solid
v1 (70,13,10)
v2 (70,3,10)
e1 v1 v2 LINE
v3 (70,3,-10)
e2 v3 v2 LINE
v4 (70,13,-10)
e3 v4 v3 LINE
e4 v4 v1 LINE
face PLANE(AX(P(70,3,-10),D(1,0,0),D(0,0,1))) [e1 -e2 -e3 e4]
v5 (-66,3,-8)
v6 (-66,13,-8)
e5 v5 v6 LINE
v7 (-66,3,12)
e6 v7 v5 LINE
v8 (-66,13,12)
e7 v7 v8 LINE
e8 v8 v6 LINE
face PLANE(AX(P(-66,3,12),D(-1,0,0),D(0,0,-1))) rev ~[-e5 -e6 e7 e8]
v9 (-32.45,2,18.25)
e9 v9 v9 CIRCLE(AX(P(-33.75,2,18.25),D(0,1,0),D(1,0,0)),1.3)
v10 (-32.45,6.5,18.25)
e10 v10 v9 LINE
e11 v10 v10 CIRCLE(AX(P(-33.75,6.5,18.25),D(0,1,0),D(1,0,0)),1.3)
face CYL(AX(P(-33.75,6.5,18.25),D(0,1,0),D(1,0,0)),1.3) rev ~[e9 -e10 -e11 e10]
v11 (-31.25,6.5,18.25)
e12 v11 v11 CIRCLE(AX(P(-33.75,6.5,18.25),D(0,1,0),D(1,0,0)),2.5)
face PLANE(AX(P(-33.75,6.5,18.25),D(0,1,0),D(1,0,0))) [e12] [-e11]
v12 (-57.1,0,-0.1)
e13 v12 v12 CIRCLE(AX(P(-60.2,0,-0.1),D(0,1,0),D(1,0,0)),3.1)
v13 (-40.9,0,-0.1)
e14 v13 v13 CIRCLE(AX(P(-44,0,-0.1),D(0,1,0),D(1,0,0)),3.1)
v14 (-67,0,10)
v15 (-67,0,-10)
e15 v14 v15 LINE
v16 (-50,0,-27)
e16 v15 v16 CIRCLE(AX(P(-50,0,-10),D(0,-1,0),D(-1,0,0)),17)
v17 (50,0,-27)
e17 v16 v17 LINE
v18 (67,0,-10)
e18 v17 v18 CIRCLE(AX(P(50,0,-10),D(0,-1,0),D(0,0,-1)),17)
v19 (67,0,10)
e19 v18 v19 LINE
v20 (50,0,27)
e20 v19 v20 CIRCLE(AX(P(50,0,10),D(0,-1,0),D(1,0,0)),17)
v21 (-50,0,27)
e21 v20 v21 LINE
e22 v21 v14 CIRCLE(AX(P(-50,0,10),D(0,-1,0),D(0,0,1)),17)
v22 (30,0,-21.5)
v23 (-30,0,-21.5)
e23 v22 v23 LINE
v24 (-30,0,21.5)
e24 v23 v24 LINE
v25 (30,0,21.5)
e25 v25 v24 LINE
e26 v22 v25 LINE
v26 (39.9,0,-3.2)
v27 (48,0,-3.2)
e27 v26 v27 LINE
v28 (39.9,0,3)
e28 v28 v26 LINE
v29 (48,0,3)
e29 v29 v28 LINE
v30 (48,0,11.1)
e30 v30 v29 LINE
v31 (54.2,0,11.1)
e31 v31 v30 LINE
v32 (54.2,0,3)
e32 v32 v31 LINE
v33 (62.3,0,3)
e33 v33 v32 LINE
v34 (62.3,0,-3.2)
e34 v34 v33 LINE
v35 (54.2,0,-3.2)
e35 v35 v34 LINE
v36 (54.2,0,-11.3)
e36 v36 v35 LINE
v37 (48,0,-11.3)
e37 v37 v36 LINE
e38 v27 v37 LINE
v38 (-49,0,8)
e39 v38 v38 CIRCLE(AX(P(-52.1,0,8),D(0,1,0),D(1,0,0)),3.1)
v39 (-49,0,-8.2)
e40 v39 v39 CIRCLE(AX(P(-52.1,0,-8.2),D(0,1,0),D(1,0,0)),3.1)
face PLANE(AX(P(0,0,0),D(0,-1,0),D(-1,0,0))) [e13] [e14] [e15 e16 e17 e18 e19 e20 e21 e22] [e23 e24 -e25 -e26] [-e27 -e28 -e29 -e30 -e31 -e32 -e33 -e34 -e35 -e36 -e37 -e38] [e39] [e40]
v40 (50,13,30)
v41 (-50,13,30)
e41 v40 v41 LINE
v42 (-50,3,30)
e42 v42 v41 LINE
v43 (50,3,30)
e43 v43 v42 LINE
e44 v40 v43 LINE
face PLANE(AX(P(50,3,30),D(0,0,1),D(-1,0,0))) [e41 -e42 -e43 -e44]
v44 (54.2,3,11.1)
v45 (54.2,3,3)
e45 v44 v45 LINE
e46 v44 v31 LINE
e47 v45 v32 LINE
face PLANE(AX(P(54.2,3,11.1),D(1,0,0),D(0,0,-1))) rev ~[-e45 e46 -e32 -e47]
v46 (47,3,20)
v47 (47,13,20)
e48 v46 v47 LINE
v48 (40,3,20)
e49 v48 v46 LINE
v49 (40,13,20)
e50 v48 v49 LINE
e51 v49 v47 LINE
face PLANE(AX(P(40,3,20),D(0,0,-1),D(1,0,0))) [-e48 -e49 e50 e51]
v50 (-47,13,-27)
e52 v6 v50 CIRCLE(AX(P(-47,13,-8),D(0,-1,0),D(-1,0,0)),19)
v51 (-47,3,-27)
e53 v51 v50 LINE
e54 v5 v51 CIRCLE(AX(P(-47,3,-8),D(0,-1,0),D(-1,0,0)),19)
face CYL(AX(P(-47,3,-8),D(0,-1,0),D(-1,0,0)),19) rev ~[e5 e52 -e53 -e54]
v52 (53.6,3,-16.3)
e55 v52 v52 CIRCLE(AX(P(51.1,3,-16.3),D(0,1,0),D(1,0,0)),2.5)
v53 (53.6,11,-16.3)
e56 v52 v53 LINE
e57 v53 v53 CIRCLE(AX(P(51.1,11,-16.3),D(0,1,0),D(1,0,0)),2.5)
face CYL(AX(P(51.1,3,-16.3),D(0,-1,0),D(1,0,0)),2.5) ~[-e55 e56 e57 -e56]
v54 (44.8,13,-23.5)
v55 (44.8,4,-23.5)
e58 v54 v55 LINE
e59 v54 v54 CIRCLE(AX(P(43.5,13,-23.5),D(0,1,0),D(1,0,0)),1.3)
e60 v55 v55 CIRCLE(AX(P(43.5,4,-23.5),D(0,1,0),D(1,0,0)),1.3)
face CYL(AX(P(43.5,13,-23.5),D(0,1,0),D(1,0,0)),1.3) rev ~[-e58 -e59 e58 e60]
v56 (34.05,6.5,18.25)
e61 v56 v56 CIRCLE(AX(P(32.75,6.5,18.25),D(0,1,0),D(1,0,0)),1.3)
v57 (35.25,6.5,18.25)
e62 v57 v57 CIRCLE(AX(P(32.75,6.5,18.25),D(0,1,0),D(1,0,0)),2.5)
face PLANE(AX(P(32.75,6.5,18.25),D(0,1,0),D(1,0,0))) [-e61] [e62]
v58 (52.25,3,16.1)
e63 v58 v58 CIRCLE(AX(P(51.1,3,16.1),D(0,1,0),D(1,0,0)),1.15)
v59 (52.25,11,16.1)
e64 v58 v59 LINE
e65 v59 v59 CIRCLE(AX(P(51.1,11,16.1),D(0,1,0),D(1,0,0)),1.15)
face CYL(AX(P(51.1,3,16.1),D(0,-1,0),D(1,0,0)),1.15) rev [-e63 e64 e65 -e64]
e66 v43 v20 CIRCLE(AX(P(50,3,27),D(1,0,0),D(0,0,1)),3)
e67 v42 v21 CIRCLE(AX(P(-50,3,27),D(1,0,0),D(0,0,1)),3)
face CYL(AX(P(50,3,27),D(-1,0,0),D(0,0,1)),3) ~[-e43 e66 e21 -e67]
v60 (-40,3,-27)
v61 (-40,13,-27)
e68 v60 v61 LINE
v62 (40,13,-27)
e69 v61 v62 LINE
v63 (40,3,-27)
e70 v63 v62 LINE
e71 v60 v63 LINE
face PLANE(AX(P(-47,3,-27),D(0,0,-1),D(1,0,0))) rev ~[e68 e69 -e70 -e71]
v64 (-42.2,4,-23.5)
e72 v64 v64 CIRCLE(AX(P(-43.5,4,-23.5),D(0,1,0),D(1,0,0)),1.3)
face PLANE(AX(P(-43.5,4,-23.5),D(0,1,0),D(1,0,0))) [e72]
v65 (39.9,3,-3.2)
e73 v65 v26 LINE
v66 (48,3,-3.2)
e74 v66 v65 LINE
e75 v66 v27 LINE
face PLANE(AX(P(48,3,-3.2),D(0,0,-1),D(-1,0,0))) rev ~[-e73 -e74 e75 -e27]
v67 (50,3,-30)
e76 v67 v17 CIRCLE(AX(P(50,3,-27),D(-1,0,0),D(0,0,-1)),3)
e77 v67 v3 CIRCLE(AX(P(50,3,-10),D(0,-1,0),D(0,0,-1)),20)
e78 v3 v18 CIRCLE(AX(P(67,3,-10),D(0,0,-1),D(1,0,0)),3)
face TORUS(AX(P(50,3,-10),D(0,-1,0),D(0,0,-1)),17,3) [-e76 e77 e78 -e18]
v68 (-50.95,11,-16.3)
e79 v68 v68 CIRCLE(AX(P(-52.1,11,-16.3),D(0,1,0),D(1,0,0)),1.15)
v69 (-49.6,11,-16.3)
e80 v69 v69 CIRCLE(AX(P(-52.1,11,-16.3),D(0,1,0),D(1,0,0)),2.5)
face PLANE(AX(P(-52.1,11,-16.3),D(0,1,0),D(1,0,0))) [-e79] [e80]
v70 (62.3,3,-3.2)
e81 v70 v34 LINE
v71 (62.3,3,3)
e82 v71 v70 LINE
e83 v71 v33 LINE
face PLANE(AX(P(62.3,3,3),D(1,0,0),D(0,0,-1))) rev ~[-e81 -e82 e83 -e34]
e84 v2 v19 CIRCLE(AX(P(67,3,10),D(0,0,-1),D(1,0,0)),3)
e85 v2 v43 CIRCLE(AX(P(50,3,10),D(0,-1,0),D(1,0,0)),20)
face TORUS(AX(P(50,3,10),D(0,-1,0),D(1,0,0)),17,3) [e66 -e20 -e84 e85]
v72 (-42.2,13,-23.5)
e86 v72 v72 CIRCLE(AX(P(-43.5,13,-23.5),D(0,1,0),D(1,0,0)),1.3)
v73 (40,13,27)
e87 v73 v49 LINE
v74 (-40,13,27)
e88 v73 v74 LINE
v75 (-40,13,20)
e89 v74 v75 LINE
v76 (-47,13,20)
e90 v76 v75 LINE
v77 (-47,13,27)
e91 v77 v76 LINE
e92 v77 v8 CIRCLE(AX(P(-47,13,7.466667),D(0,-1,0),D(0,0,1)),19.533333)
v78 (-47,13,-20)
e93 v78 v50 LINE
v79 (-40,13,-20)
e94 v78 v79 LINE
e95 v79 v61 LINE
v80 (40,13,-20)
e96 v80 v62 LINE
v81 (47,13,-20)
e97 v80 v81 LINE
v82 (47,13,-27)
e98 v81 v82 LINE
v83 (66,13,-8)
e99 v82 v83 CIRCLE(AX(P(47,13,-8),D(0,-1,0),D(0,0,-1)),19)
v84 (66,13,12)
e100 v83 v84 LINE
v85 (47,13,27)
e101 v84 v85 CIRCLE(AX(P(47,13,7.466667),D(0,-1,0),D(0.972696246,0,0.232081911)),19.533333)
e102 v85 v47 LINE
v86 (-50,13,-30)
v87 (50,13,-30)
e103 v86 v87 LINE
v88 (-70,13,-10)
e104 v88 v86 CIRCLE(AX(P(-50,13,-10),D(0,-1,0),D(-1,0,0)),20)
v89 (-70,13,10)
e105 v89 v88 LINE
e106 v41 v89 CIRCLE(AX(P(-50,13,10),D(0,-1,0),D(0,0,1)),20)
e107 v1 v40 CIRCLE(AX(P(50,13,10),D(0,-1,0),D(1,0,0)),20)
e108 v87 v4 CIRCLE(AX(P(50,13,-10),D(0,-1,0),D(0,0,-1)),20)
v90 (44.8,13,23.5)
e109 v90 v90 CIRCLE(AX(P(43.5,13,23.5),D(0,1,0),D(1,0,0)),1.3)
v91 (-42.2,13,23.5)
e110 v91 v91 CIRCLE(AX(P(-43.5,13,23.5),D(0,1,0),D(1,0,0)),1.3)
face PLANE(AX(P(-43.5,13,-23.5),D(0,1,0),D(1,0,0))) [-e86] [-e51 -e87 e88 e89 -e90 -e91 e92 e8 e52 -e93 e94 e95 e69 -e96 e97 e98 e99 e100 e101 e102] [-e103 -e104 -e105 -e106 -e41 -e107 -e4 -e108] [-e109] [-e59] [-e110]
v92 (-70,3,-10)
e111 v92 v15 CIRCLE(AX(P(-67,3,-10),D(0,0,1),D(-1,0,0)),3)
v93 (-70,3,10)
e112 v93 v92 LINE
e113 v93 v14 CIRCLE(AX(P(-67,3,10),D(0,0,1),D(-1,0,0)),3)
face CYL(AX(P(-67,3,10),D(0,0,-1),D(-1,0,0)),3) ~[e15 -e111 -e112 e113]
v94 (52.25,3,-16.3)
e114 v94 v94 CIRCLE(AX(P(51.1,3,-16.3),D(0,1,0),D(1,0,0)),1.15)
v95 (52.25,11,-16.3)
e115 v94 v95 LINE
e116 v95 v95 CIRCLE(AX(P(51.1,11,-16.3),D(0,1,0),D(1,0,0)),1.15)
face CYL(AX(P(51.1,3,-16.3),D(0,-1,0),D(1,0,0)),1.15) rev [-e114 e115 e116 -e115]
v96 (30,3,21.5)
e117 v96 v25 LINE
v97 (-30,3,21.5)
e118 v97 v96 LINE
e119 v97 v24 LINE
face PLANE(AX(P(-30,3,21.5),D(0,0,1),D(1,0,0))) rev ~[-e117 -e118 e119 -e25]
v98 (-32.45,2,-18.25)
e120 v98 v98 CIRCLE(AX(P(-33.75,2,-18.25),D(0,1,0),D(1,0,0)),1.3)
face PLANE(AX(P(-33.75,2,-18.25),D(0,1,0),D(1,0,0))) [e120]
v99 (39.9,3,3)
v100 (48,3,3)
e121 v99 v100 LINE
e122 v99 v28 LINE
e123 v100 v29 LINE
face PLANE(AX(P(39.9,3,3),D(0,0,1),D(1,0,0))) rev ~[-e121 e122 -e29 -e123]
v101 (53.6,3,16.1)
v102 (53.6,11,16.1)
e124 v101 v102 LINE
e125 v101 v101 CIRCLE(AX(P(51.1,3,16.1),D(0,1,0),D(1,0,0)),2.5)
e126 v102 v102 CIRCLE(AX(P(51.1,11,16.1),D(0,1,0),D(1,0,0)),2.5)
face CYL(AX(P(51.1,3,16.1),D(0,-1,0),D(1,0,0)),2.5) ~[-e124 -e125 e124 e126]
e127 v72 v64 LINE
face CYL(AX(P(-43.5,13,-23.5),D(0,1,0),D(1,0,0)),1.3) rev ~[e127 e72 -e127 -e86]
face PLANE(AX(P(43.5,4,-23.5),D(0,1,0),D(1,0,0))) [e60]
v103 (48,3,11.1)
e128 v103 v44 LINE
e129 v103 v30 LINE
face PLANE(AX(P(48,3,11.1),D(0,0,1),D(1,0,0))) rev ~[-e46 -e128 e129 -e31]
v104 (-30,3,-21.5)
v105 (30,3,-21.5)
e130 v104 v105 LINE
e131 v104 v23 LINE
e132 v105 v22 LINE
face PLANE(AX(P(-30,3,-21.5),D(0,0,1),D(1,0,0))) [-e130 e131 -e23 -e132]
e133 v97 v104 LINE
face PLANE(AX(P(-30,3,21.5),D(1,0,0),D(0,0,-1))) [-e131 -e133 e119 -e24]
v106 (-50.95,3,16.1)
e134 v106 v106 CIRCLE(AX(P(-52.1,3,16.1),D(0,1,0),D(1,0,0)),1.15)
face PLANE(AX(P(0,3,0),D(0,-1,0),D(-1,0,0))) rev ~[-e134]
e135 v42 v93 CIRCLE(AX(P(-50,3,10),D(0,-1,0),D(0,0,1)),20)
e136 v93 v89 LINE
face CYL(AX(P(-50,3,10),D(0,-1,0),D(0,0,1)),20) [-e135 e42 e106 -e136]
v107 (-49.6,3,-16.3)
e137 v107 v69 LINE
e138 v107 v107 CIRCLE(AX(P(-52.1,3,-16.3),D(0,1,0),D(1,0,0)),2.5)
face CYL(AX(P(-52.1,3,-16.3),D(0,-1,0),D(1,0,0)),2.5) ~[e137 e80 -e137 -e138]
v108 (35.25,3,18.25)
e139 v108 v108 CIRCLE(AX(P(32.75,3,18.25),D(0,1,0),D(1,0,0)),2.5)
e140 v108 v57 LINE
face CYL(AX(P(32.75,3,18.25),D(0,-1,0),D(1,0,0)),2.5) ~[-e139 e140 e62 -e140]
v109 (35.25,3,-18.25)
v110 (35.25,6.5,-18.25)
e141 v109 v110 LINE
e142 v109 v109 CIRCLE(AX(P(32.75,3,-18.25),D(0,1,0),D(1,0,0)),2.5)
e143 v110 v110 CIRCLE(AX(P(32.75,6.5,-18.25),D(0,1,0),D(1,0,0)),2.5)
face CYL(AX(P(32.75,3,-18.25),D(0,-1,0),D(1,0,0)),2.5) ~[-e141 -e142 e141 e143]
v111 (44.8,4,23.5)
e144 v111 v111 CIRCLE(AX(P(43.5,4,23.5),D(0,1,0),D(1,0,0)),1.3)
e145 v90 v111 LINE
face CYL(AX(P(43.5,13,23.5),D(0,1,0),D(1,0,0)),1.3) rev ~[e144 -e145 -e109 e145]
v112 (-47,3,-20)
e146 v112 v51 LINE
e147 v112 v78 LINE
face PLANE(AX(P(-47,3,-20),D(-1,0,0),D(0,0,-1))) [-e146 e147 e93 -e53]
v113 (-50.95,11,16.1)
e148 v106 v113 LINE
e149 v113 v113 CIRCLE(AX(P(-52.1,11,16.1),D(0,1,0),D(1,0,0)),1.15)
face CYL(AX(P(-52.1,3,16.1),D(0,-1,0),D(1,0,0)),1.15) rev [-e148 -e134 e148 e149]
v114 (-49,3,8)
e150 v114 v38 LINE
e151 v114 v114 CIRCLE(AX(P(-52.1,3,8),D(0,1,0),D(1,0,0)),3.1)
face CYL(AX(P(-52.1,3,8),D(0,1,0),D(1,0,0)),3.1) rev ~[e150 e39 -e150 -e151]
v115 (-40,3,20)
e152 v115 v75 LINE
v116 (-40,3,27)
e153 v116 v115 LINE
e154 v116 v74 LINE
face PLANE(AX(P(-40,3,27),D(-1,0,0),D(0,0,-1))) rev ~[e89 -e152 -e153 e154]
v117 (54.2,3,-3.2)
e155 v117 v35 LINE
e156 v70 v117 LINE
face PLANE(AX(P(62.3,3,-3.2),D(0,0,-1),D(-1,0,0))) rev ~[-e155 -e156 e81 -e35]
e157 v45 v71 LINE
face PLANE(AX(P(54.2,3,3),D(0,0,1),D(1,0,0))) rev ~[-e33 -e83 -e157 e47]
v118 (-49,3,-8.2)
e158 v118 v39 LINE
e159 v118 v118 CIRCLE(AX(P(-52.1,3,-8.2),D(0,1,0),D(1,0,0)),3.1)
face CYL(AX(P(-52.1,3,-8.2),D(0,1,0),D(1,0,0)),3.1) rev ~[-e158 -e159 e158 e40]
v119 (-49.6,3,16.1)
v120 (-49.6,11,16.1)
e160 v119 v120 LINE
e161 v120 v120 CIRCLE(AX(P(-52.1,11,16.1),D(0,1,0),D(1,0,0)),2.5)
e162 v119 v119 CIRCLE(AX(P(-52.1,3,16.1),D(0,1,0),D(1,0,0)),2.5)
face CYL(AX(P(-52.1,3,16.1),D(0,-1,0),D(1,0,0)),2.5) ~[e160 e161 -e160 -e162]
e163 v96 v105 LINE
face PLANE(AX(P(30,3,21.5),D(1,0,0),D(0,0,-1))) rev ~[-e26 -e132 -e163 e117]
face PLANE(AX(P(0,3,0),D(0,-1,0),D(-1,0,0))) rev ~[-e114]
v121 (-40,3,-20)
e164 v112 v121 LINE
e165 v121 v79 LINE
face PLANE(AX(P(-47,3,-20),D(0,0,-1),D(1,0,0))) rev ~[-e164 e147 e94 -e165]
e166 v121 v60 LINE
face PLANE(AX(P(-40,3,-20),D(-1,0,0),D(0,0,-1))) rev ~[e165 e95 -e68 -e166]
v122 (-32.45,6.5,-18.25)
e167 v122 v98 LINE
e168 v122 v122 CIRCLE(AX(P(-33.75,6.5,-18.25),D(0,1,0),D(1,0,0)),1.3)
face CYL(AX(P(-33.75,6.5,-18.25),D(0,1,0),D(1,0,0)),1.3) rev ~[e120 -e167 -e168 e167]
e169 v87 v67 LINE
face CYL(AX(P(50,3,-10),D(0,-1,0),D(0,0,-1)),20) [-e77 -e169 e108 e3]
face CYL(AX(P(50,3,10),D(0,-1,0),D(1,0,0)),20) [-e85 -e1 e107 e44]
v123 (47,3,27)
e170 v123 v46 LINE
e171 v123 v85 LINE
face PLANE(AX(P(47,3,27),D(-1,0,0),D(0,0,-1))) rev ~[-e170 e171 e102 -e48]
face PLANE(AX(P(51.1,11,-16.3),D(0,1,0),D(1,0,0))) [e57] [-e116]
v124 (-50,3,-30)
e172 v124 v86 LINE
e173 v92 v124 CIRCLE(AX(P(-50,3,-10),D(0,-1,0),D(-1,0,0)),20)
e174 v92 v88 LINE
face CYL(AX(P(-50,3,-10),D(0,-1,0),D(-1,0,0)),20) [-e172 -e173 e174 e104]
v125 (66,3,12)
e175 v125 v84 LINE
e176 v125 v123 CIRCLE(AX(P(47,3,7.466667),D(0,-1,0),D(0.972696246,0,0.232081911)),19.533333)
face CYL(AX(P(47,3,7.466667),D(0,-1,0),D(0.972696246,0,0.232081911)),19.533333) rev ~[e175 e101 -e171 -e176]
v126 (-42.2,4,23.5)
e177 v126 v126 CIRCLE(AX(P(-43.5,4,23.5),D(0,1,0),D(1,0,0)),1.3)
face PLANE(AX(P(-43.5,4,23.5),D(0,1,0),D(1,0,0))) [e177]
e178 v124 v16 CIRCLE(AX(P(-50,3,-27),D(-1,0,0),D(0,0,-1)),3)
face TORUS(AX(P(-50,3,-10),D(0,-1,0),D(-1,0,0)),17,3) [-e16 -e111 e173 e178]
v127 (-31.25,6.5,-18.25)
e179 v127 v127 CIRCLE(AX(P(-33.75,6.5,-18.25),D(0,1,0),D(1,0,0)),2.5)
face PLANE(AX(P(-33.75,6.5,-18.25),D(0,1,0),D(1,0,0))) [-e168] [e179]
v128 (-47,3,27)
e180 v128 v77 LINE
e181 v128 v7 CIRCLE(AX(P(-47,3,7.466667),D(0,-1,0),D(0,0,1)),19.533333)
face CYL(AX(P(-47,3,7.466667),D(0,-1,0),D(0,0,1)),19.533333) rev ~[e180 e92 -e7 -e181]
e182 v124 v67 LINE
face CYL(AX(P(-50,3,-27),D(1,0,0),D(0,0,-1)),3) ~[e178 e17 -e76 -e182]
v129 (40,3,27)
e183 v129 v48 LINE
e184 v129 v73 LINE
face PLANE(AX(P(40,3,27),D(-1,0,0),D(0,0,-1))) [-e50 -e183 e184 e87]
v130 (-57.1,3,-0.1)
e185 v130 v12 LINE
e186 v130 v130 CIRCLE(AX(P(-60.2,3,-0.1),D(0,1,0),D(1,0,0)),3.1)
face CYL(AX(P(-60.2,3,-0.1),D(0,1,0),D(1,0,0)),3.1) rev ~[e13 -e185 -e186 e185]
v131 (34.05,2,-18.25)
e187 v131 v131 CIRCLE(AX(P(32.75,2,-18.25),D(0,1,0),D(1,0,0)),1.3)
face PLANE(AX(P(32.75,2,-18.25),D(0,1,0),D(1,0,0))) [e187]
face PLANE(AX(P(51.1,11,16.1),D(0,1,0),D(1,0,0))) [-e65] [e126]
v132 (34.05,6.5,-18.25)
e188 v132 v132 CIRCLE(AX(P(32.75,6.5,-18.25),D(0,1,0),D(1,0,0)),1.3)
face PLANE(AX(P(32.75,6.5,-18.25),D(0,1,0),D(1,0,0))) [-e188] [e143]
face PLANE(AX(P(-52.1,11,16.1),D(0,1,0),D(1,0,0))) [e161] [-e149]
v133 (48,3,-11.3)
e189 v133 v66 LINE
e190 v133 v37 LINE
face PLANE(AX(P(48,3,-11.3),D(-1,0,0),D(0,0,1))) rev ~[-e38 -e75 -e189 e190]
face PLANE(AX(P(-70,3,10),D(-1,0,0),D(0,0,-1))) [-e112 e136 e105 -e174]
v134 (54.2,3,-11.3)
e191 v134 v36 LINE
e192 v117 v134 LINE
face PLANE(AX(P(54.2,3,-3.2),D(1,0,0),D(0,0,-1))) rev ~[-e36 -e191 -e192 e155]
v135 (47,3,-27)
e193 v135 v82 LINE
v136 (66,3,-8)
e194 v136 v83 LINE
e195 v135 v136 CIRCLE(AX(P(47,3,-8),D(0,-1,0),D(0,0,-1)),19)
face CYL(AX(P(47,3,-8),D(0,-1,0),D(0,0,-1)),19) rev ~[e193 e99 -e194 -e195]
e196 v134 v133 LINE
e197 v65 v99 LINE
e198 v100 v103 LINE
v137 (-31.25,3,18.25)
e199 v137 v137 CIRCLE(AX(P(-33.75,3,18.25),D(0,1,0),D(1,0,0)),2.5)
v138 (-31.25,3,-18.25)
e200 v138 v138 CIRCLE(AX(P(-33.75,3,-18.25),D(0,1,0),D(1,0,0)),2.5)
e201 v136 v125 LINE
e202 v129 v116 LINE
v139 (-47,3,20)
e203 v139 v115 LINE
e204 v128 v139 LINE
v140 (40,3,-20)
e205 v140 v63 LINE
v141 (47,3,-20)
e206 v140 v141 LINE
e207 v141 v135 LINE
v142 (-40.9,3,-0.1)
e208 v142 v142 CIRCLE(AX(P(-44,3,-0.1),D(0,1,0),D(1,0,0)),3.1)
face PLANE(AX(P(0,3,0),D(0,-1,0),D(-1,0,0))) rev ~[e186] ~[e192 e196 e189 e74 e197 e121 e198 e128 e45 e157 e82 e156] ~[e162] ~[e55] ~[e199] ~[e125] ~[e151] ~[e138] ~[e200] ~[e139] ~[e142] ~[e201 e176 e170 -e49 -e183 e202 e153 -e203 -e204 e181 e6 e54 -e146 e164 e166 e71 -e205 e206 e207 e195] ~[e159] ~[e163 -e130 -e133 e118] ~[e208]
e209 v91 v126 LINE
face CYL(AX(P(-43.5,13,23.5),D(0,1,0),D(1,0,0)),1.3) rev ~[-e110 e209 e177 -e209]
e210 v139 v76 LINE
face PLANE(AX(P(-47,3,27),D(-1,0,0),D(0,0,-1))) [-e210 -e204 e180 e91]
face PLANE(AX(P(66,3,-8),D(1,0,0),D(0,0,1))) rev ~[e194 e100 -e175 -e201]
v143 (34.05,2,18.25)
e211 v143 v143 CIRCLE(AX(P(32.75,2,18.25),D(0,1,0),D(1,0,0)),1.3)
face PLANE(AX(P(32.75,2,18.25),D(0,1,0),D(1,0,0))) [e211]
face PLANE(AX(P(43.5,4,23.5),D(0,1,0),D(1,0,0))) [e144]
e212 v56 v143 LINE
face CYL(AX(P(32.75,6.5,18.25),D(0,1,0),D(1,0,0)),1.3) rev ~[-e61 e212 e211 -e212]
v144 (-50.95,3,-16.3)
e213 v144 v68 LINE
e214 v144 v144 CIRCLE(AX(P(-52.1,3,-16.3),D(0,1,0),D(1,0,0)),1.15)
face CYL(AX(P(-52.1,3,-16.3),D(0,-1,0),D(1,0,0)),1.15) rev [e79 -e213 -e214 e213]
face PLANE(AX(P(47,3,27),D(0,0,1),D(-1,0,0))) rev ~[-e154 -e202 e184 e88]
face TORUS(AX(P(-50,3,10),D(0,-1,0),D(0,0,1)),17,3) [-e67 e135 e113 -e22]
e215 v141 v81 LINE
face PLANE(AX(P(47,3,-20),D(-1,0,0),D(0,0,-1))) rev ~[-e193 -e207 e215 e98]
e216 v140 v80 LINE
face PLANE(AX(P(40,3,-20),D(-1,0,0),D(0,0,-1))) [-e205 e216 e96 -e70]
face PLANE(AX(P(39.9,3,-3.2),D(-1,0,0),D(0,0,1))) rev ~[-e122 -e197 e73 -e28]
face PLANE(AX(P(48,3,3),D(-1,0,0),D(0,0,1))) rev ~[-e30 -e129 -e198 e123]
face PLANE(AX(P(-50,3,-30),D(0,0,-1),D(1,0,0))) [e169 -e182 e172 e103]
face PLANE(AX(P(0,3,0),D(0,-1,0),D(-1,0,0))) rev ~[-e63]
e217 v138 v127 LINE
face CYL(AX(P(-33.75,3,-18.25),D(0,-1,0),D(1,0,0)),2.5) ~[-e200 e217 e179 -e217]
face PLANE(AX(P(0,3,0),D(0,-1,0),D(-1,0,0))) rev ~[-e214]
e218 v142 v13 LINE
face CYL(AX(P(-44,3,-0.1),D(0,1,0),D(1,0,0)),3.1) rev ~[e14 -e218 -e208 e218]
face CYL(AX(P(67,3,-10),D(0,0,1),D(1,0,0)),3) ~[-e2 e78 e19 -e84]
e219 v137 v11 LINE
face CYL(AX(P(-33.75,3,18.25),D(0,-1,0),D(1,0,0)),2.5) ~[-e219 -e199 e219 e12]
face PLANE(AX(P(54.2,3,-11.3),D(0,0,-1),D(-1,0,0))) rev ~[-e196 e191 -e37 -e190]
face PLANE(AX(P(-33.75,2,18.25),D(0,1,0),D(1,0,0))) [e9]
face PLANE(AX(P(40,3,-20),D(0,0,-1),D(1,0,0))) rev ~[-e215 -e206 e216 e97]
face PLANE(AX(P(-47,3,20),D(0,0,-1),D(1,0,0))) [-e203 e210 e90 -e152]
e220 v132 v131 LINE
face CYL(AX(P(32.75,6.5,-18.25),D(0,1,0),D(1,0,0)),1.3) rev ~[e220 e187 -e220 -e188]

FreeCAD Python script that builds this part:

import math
import FreeCAD as App
import Part
import Sketcher

V = App.Vector


def edges_at(feature, points):
    """Names of the edges that pass closest to the given points."""
    edges = feature.Shape.Edges
    near = lambda p: min(range(len(edges)), key=lambda i: edges[i].distToShape(Part.Vertex(*p))[0])
    return sorted({f"Edge{near(p) + 1}" for p in points})

doc = App.newDocument("Part")
body = doc.addObject("PartDesign::Body", "Body")

# Sketch on XZ plane
sketch1 = body.newObject("Sketcher::SketchObject", "Sketch")
sketch1.AttachmentSupport = (doc.getObject("XZ_Plane"), [""])
sketch1.MapMode = "FlatFace"
sketch1.addGeometry([
    Part.LineSegment(V(70, 10, 0), V(70, -10, 0)),  # 0
    Part.ArcOfCircle(Part.Circle(V(50, -10, 0), V(0, 0, 1), 20), math.radians(-90), math.radians(0)),  # 1
    Part.LineSegment(V(50, -30, 0), V(-50, -30, 0)),  # 2
    Part.ArcOfCircle(Part.Circle(V(-50, -10, 0), V(0, 0, 1), 20), math.radians(180), math.radians(270)),  # 3
    Part.LineSegment(V(-70, -10, 0), V(-70, 10, 0)),  # 4
    Part.ArcOfCircle(Part.Circle(V(-50, 10, 0), V(0, 0, 1), 20), math.radians(90), math.radians(180)),  # 5
    Part.LineSegment(V(-50, 30, 0), V(50, 30, 0)),  # 6
    Part.ArcOfCircle(Part.Circle(V(50, 10, 0), V(0, 0, 1), 20), math.radians(0), math.radians(90)),  # 7
], False)
sketch1.addConstraint([
    Sketcher.Constraint("Tangent", 0, 2, 1, 2),
    Sketcher.Constraint("Tangent", 1, 1, 2, 1),
    Sketcher.Constraint("Tangent", 2, 2, 3, 2),
    Sketcher.Constraint("Tangent", 3, 1, 4, 1),
    Sketcher.Constraint("Tangent", 4, 2, 5, 2),
    Sketcher.Constraint("Tangent", 5, 1, 6, 1),
    Sketcher.Constraint("Tangent", 6, 2, 7, 2),
    Sketcher.Constraint("Tangent", 7, 1, 0, 1),
    Sketcher.Constraint("Vertical", 0),
    Sketcher.Constraint("Horizontal", 2),
    Sketcher.Constraint("Vertical", 4),
    Sketcher.Constraint("Horizontal", 6),
    Sketcher.Constraint("Equal", 1, 3),
    Sketcher.Constraint("Equal", 3, 5),
    Sketcher.Constraint("Equal", 5, 7),
    Sketcher.Constraint("Symmetric", 1, 3, 5, 3, -1, 1),
    Sketcher.Constraint("Radius", 1, 20.0),
    Sketcher.Constraint("DistanceX", 2, 2, 2, 1, 100.0),
    Sketcher.Constraint("DistanceY", 0, 2, 0, 1, 20.0),
])
pad1 = body.newObject("PartDesign::Pad", "Pad")
pad1.Profile = sketch1
pad1.Length = 3
pad1.Reversed = True

# Sketch on XZ plane
sketch2 = body.newObject("Sketcher::SketchObject", "Sketch001")
sketch2.AttachmentSupport = (doc.getObject("XZ_Plane"), [""])
sketch2.MapMode = "FlatFace"
sketch2.AttachmentOffset = App.Placement(V(0, 0, -3), App.Rotation())
sketch2.addGeometry([
    Part.LineSegment(V(50, -30, 0), V(-50, -30, 0)),  # 0
    Part.ArcOfCircle(Part.Circle(V(-50, -10, 0), V(0, 0, 1), 20), math.radians(180), math.radians(270)),  # 1
    Part.LineSegment(V(-70, -10, 0), V(-70, 10, 0)),  # 2
    Part.ArcOfCircle(Part.Circle(V(-50, 10, 0), V(0, 0, 1), 20), math.radians(90), math.radians(180)),  # 3
    Part.LineSegment(V(-50, 30, 0), V(50, 30, 0)),  # 4
    Part.ArcOfCircle(Part.Circle(V(50, 10, 0), V(0, 0, 1), 20), math.radians(0), math.radians(90)),  # 5
    Part.LineSegment(V(70, 10, 0), V(70, -10, 0)),  # 6
    Part.ArcOfCircle(Part.Circle(V(50, -10, 0), V(0, 0, 1), 20), math.radians(-90), math.radians(0)),  # 7
    Part.LineSegment(V(-47, -27, 0), V(47, -27, 0)),  # 8
    Part.ArcOfCircle(Part.Circle(V(47, -8, 0), V(0, 0, 1), 19), math.radians(-90), math.radians(0)),  # 9
    Part.LineSegment(V(66, -8, 0), V(66, 12, 0)),  # 10
    Part.ArcOfCircle(Part.Circle(V(47, 7, 0), V(0, 0, 1), 20), math.radians(13), math.radians(90)),  # 11
    Part.LineSegment(V(47, 27, 0), V(-47, 27, 0)),  # 12
    Part.ArcOfCircle(Part.Circle(V(-47, 7, 0), V(0, 0, 1), 20), math.radians(90), math.radians(167)),  # 13
    Part.LineSegment(V(-66, 12, 0), V(-66, -8, 0)),  # 14
    Part.ArcOfCircle(Part.Circle(V(-47, -8, 0), V(0, 0, 1), 19), math.radians(180), math.radians(270)),  # 15
], False)
sketch2.addConstraint([
    Sketcher.Constraint("Tangent", 0, 2, 1, 2),
    Sketcher.Constraint("Tangent", 1, 1, 2, 1),
    Sketcher.Constraint("Tangent", 2, 2, 3, 2),
    Sketcher.Constraint("Tangent", 3, 1, 4, 1),
    Sketcher.Constraint("Tangent", 4, 2, 5, 2),
    Sketcher.Constraint("Tangent", 5, 1, 6, 1),
    Sketcher.Constraint("Tangent", 6, 2, 7, 2),
    Sketcher.Constraint("Tangent", 7, 1, 0, 1),
    Sketcher.Constraint("Tangent", 8, 2, 9, 1),
    Sketcher.Constraint("Tangent", 9, 2, 10, 1),
    Sketcher.Constraint("Coincident", 10, 2, 11, 1),
    Sketcher.Constraint("Tangent", 11, 2, 12, 1),
    Sketcher.Constraint("Tangent", 12, 2, 13, 1),
    Sketcher.Constraint("Coincident", 13, 2, 14, 1),
    Sketcher.Constraint("Tangent", 14, 2, 15, 1),
    Sketcher.Constraint("Tangent", 15, 2, 8, 1),
    Sketcher.Constraint("Horizontal", 0),
    Sketcher.Constraint("Vertical", 2),
    Sketcher.Constraint("Horizontal", 4),
    Sketcher.Constraint("Vertical", 6),
    Sketcher.Constraint("Horizontal", 8),
    Sketcher.Constraint("Vertical", 10),
    Sketcher.Constraint("Horizontal", 12),
    Sketcher.Constraint("Vertical", 14),
    Sketcher.Constraint("Equal", 1, 3),
    Sketcher.Constraint("Equal", 3, 5),
    Sketcher.Constraint("Equal", 5, 7),
    Sketcher.Constraint("Equal", 11, 13),
    Sketcher.Constraint("Equal", 9, 15),
    Sketcher.Constraint("Symmetric", 1, 3, 5, 3, -1, 1),
    Sketcher.Constraint("Symmetric", 8, 2, 12, 2, -1, 1),
    Sketcher.Constraint("Symmetric", 10, 2, 13, 2, -2),
    Sketcher.Constraint("Equal", 6, 10),
    Sketcher.Constraint("Radius", 1, 20.0),
    Sketcher.Constraint("Radius", 9, 19.0),
    Sketcher.Constraint("DistanceX", 0, 2, 0, 1, 100.0),
    Sketcher.Constraint("DistanceX", 8, 1, 8, 2, 94.0),
    Sketcher.Constraint("DistanceY", 2, 1, 2, 2, 20.0),
    Sketcher.Constraint("DistanceY", 9, 3, -1, 1, 8.0),
])
pad2 = body.newObject("PartDesign::Pad", "Pad001")
pad2.Profile = sketch2
pad2.Length = 10
pad2.Reversed = True

# Sketch on XZ plane
sketch3 = body.newObject("Sketcher::SketchObject", "Sketch002")
sketch3.AttachmentSupport = (doc.getObject("XZ_Plane"), [""])
sketch3.MapMode = "FlatFace"
sketch3.AttachmentOffset = App.Placement(V(0, 0, -3), App.Rotation())
sketch3.addGeometry([
    Part.LineSegment(V(-30, -22, 0), V(-30, 22, 0)),
    Part.LineSegment(V(-30, 22, 0), V(30, 22, 0)),
    Part.LineSegment(V(30, 22, 0), V(30, -22, 0)),
    Part.LineSegment(V(30, -22, 0), V(-30, -22, 0)),
], False)
sketch3.addConstraint([
    Sketcher.Constraint("Coincident", 0, 2, 1, 1),
    Sketcher.Constraint("Coincident", 1, 2, 2, 1),
    Sketcher.Constraint("Coincident", 2, 2, 3, 1),
    Sketcher.Constraint("Coincident", 3, 2, 0, 1),
    Sketcher.Constraint("Vertical", 0),
    Sketcher.Constraint("Horizontal", 1),
    Sketcher.Constraint("Vertical", 2),
    Sketcher.Constraint("Horizontal", 3),
    Sketcher.Constraint("Symmetric", 0, 2, 2, 2, -1, 1),
    Sketcher.Constraint("DistanceX", 1, 1, 1, 2, 60.0),
    Sketcher.Constraint("DistanceY", 0, 1, 0, 2, 43.0),
])
pocket1 = body.newObject("PartDesign::Pocket", "Pocket")
pocket1.Profile = sketch3
pocket1.Length = 5
pocket1.Reversed = True

# Sketch on XZ plane
sketch4 = body.newObject("Sketcher::SketchObject", "Sketch003")
sketch4.AttachmentSupport = (doc.getObject("XZ_Plane"), [""])
sketch4.MapMode = "FlatFace"
sketch4.AttachmentOffset = App.Placement(V(0, 0, -3), App.Rotation())
sketch4.addGeometry([
    Part.Circle(V(-33.8, -18.2, 0), V(0, 0, 1), 2.5),
    Part.Circle(V(-33.8, 18.2, 0), V(0, 0, 1), 2.5),
    Part.Circle(V(32.8, 18.2, 0), V(0, 0, 1), 2.5),
    Part.Circle(V(32.8, -18.2, 0), V(0, 0, 1), 2.5),
], False)
sketch4.addConstraint([
    Sketcher.Constraint("Equal", 0, 1),
    Sketcher.Constraint("Equal", 1, 2),
    Sketcher.Constraint("Equal", 2, 3),
    Sketcher.Constraint("Symmetric", 0, 3, 1, 3, -1),
    Sketcher.Constraint("Symmetric", 2, 3, 3, 3, -1),
    Sketcher.Constraint("Horizontal", 1, 3, 2, 3),
    Sketcher.Constraint("Diameter", 0, 5.0),
    Sketcher.Constraint("DistanceY", 0, 3, 1, 3, 36.5),
    Sketcher.Constraint("DistanceX", 1, 3, 2, 3, 66.5),
    Sketcher.Constraint("DistanceX", 0, 3, -1, 1, 33.75),
])
pad3 = body.newObject("PartDesign::Pad", "Pad002")
pad3.Profile = sketch4
pad3.Length = 3.5
pad3.Reversed = True

# Sketch on XZ plane
sketch5 = body.newObject("Sketcher::SketchObject", "Sketch004")
sketch5.AttachmentSupport = (doc.getObject("XZ_Plane"), [""])
sketch5.MapMode = "FlatFace"
sketch5.AttachmentOffset = App.Placement(V(0, 0, -6.5), App.Rotation())
sketch5.addGeometry(Part.Circle(V(-33.8, 18.2, 0), V(0, 0, 1), 1.3), False)
sketch5.addConstraint([
    Sketcher.Constraint("Diameter", 0, 2.6),
    Sketcher.Constraint("DistanceX", 0, 3, -1, 1, 33.75),
    Sketcher.Constraint("DistanceY", -1, 1, 0, 3, 18.25),
])
pocket2 = body.newObject("PartDesign::Pocket", "Pocket001")
pocket2.Profile = sketch5
pocket2.Length = 4.5
pocket2.Reversed = True

# Sketch on XZ plane
sketch6 = body.newObject("Sketcher::SketchObject", "Sketch005")
sketch6.AttachmentSupport = (doc.getObject("XZ_Plane"), [""])
sketch6.MapMode = "FlatFace"
sketch6.AttachmentOffset = App.Placement(V(0, 0, -6.5), App.Rotation())
sketch6.addGeometry(Part.Circle(V(-33.8, -18.2, 0), V(0, 0, 1), 1.3), False)
sketch6.addConstraint([
    Sketcher.Constraint("Diameter", 0, 2.6),
    Sketcher.Constraint("DistanceX", 0, 3, -1, 1, 33.75),
    Sketcher.Constraint("DistanceY", 0, 3, -1, 1, 18.25),
])
pocket3 = body.newObject("PartDesign::Pocket", "Pocket002")
pocket3.Profile = sketch6
pocket3.Length = 4.5
pocket3.Reversed = True

# Sketch on XZ plane
sketch7 = body.newObject("Sketcher::SketchObject", "Sketch006")
sketch7.AttachmentSupport = (doc.getObject("XZ_Plane"), [""])
sketch7.MapMode = "FlatFace"
sketch7.AttachmentOffset = App.Placement(V(0, 0, -6.5), App.Rotation())
sketch7.addGeometry(Part.Circle(V(32.8, -18.2, 0), V(0, 0, 1), 1.3), False)
sketch7.addConstraint([
    Sketcher.Constraint("Diameter", 0, 2.6),
    Sketcher.Constraint("DistanceX", -1, 1, 0, 3, 32.75),
    Sketcher.Constraint("DistanceY", 0, 3, -1, 1, 18.25),
])
pocket4 = body.newObject("PartDesign::Pocket", "Pocket003")
pocket4.Profile = sketch7
pocket4.Length = 4.5
pocket4.Reversed = True

# Sketch on XZ plane
sketch8 = body.newObject("Sketcher::SketchObject", "Sketch007")
sketch8.AttachmentSupport = (doc.getObject("XZ_Plane"), [""])
sketch8.MapMode = "FlatFace"
sketch8.AttachmentOffset = App.Placement(V(0, 0, -6.5), App.Rotation())
sketch8.addGeometry(Part.Circle(V(32.8, 18.2, 0), V(0, 0, 1), 1.3), False)
sketch8.addConstraint([
    Sketcher.Constraint("Diameter", 0, 2.6),
    Sketcher.Constraint("DistanceX", -1, 1, 0, 3, 32.75),
    Sketcher.Constraint("DistanceY", -1, 1, 0, 3, 18.25),
])
pocket5 = body.newObject("PartDesign::Pocket", "Pocket004")
pocket5.Profile = sketch8
pocket5.Length = 4.5
pocket5.Reversed = True

# Sketch on XZ plane
sketch9 = body.newObject("Sketcher::SketchObject", "Sketch008")
sketch9.AttachmentSupport = (doc.getObject("XZ_Plane"), [""])
sketch9.MapMode = "FlatFace"
sketch9.AttachmentOffset = App.Placement(V(0, 0, -3), App.Rotation())
sketch9.addGeometry([
    Part.Circle(V(-44, -0.1, 0), V(0, 0, 1), 3.1),  # 0
    Part.Circle(V(-52.1, -8.2, 0), V(0, 0, 1), 3.1),  # 1
    Part.Circle(V(-60.2, -0.1, 0), V(0, 0, 1), 3.1),  # 2
    Part.Circle(V(-52.1, 8, 0), V(0, 0, 1), 3.1),  # 3
    Part.LineSegment(V(62.3, -3.2, 0), V(54.2, -3.2, 0)),  # 4
    Part.LineSegment(V(54.2, -3.2, 0), V(54.2, -11.3, 0)),  # 5
    Part.LineSegment(V(54.2, -11.3, 0), V(48, -11.3, 0)),  # 6
    Part.LineSegment(V(48, -11.3, 0), V(48, -3.2, 0)),  # 7
    Part.LineSegment(V(48, -3.2, 0), V(39.9, -3.2, 0)),  # 8
    Part.LineSegment(V(39.9, -3.2, 0), V(39.9, 3, 0)),  # 9
    Part.LineSegment(V(39.9, 3, 0), V(48, 3, 0)),  # 10
    Part.LineSegment(V(48, 3, 0), V(48, 11.1, 0)),  # 11
    Part.LineSegment(V(48, 11.1, 0), V(54.2, 11.1, 0)),  # 12
    Part.LineSegment(V(54.2, 11.1, 0), V(54.2, 3, 0)),  # 13
    Part.LineSegment(V(54.2, 3, 0), V(62.3, 3, 0)),  # 14
    Part.LineSegment(V(62.3, 3, 0), V(62.3, -3.2, 0)),  # 15
], False)
sketch9.addConstraint([
    Sketcher.Constraint("Coincident", 4, 2, 5, 1),
    Sketcher.Constraint("Coincident", 5, 2, 6, 1),
    Sketcher.Constraint("Coincident", 6, 2, 7, 1),
    Sketcher.Constraint("Coincident", 7, 2, 8, 1),
    Sketcher.Constraint("Coincident", 8, 2, 9, 1),
    Sketcher.Constraint("Coincident", 9, 2, 10, 1),
    Sketcher.Constraint("Coincident", 10, 2, 11, 1),
    Sketcher.Constraint("Coincident", 11, 2, 12, 1),
    Sketcher.Constraint("Coincident", 12, 2, 13, 1),
    Sketcher.Constraint("Coincident", 13, 2, 14, 1),
    Sketcher.Constraint("Coincident", 14, 2, 15, 1),
    Sketcher.Constraint("Coincident", 15, 2, 4, 1),
    Sketcher.Constraint("Horizontal", 4),
    Sketcher.Constraint("Vertical", 5),
    Sketcher.Constraint("Horizontal", 6),
    Sketcher.Constraint("Vertical", 7),
    Sketcher.Constraint("Horizontal", 8),
    Sketcher.Constraint("Vertical", 9),
    Sketcher.Constraint("Horizontal", 10),
    Sketcher.Constraint("Vertical", 11),
    Sketcher.Constraint("Horizontal", 12),
    Sketcher.Constraint("Vertical", 13),
    Sketcher.Constraint("Horizontal", 14),
    Sketcher.Constraint("Vertical", 15),
    Sketcher.Constraint("Equal", 0, 1),
    Sketcher.Constraint("Equal", 1, 2),
    Sketcher.Constraint("Equal", 2, 3),
    Sketcher.Constraint("Horizontal", 0, 3, 2, 3),
    Sketcher.Constraint("Horizontal", 4, 2, 7, 2),
    Sketcher.Constraint("Horizontal", 10, 2, 13, 2),
    Sketcher.Constraint("Vertical", 1, 3, 3, 3),
    Sketcher.Constraint("Vertical", 7, 2, 10, 2),
    Sketcher.Constraint("Vertical", 5, 2, 12, 2),
    Sketcher.Constraint("Equal", 4, 8),
    Sketcher.Constraint("Equal", 14, 5),
    Sketcher.Constraint("Equal", 12, 9),
    Sketcher.Constraint("Equal", 7, 11),
    Sketcher.Constraint("Diameter", 0, 6.2),
    Sketcher.Constraint("DistanceX", 4, 2, 4, 1, 8.1),
    Sketcher.Constraint("DistanceX", 6, 2, 6, 1, 6.2),
    Sketcher.Constraint("DistanceX", 0, 3, -1, 1, 44.0),
    Sketcher.Constraint("DistanceY", -1, 1, 3, 3, 8.0),
    Sketcher.Constraint("DistanceX", -1, 1, 6, 2, 48.0),
    Sketcher.Constraint("DistanceY", -1, 1, 9, 2, 3.0),
    Sketcher.Constraint("DistanceY", 1, 3, 4, 2, 5.0),
    Sketcher.Constraint("DistanceY", 0, 3, -1, 1, 0.1),
    Sketcher.Constraint("DistanceX", 1, 3, -1, 1, 52.1),
    Sketcher.Constraint("DistanceX", 2, 3, -1, 1, 60.2),
])
pocket6 = body.newObject("PartDesign::Pocket", "Pocket005")
pocket6.Profile = sketch9
pocket6.Length = 4.5
pocket6.Reversed = True

# Sketch on XZ plane
sketch10 = body.newObject("Sketcher::SketchObject", "Sketch009")
sketch10.AttachmentSupport = (doc.getObject("XZ_Plane"), [""])
sketch10.MapMode = "FlatFace"
sketch10.AttachmentOffset = App.Placement(V(0, 0, -3), App.Rotation())
sketch10.addGeometry([
    Part.Circle(V(-52.1, 16.1, 0), V(0, 0, 1), 2.5),  # 0
    Part.Circle(V(-52.1, 16.1, 0), V(0, 0, 1), 1.1),  # 1
    Part.Circle(V(-52.1, -16.3, 0), V(0, 0, 1), 2.5),  # 2
    Part.Circle(V(-52.1, -16.3, 0), V(0, 0, 1), 1.1),  # 3
    Part.Circle(V(51.1, -16.3, 0), V(0, 0, 1), 2.5),  # 4
    Part.Circle(V(51.1, -16.3, 0), V(0, 0, 1), 1.1),  # 5
    Part.Circle(V(51.1, 16.1, 0), V(0, 0, 1), 2.5),  # 6
    Part.Circle(V(51.1, 16.1, 0), V(0, 0, 1), 1.1),  # 7
], False)
sketch10.addConstraint([
    Sketcher.Constraint("Coincident", 1, 3, 0, 3),
    Sketcher.Constraint("Coincident", 3, 3, 2, 3),
    Sketcher.Constraint("Coincident", 5, 3, 4, 3),
    Sketcher.Constraint("Coincident", 7, 3, 6, 3),
    Sketcher.Constraint("Equal", 0, 2),
    Sketcher.Constraint("Equal", 1, 3),
    Sketcher.Constraint("Equal", 2, 4),
    Sketcher.Constraint("Equal", 3, 5),
    Sketcher.Constraint("Equal", 4, 6),
    Sketcher.Constraint("Equal", 5, 7),
    Sketcher.Constraint("Horizontal", 3, 3, 4, 3),
    Sketcher.Constraint("Horizontal", 1, 3, 6, 3),
    Sketcher.Constraint("Vertical", 1, 3, 2, 3),
    Sketcher.Constraint("Vertical", 5, 3, 6, 3),
    Sketcher.Constraint("Diameter", 0, 5.0),
    Sketcher.Constraint("Diameter", 1, 2.3),
    Sketcher.Constraint("DistanceX", 0, 3, -1, 1, 52.1),
    Sketcher.Constraint("DistanceY", -1, 1, 0, 3, 16.1),
    Sketcher.Constraint("DistanceY", 2, 3, -1, 1, 16.3),
    Sketcher.Constraint("DistanceX", -1, 1, 4, 3, 51.1),
])
pad4 = body.newObject("PartDesign::Pad", "Pad003")
pad4.Profile = sketch10
pad4.Length = 8
pad4.Reversed = True

# Sketch on XZ plane
sketch11 = body.newObject("Sketcher::SketchObject", "Sketch010")
sketch11.AttachmentSupport = (doc.getObject("XZ_Plane"), [""])
sketch11.MapMode = "FlatFace"
sketch11.AttachmentOffset = App.Placement(V(0, 0, -3), App.Rotation())
sketch11.addGeometry([
    Part.LineSegment(V(-47, -27, 0), V(-47, -20, 0)),  # 0
    Part.LineSegment(V(-47, -20, 0), V(-40, -20, 0)),  # 1
    Part.LineSegment(V(-40, -20, 0), V(-40, -27, 0)),  # 2
    Part.LineSegment(V(-40, -27, 0), V(-47, -27, 0)),  # 3
    Part.LineSegment(V(-47, 20, 0), V(-47, 27, 0)),  # 4
    Part.LineSegment(V(-47, 27, 0), V(-40, 27, 0)),  # 5
    Part.LineSegment(V(-40, 27, 0), V(-40, 20, 0)),  # 6
    Part.LineSegment(V(-40, 20, 0), V(-47, 20, 0)),  # 7
    Part.LineSegment(V(40, 20, 0), V(40, 27, 0)),  # 8
    Part.LineSegment(V(40, 27, 0), V(47, 27, 0)),  # 9
    Part.LineSegment(V(47, 27, 0), V(47, 20, 0)),  # 10
    Part.LineSegment(V(47, 20, 0), V(40, 20, 0)),  # 11
    Part.LineSegment(V(40, -27, 0), V(40, -20, 0)),  # 12
    Part.LineSegment(V(40, -20, 0), V(47, -20, 0)),  # 13
    Part.LineSegment(V(47, -20, 0), V(47, -27, 0)),  # 14
    Part.LineSegment(V(47, -27, 0), V(40, -27, 0)),  # 15
], False)
sketch11.addConstraint([
    Sketcher.Constraint("Coincident", 0, 2, 1, 1),
    Sketcher.Constraint("Coincident", 1, 2, 2, 1),
    Sketcher.Constraint("Coincident", 2, 2, 3, 1),
    Sketcher.Constraint("Coincident", 3, 2, 0, 1),
    Sketcher.Constraint("Coincident", 4, 2, 5, 1),
    Sketcher.Constraint("Coincident", 5, 2, 6, 1),
    Sketcher.Constraint("Coincident", 6, 2, 7, 1),
    Sketcher.Constraint("Coincident", 7, 2, 4, 1),
    Sketcher.Constraint("Coincident", 8, 2, 9, 1),
    Sketcher.Constraint("Coincident", 9, 2, 10, 1),
    Sketcher.Constraint("Coincident", 10, 2, 11, 1),
    Sketcher.Constraint("Coincident", 11, 2, 8, 1),
    Sketcher.Constraint("Coincident", 12, 2, 13, 1),
    Sketcher.Constraint("Coincident", 13, 2, 14, 1),
    Sketcher.Constraint("Coincident", 14, 2, 15, 1),
    Sketcher.Constraint("Coincident", 15, 2, 12, 1),
    Sketcher.Constraint("Vertical", 0),
    Sketcher.Constraint("Horizontal", 1),
    Sketcher.Constraint("Vertical", 2),
    Sketcher.Constraint("Horizontal", 3),
    Sketcher.Constraint("Vertical", 4),
    Sketcher.Constraint("Horizontal", 5),
    Sketcher.Constraint("Vertical", 6),
    Sketcher.Constraint("Horizontal", 7),
    Sketcher.Constraint("Vertical", 8),
    Sketcher.Constraint("Horizontal", 9),
    Sketcher.Constraint("Vertical", 10),
    Sketcher.Constraint("Horizontal", 11),
    Sketcher.Constraint("Vertical", 12),
    Sketcher.Constraint("Horizontal", 13),
    Sketcher.Constraint("Vertical", 14),
    Sketcher.Constraint("Horizontal", 15),
    Sketcher.Constraint("Symmetric", 2, 2, 8, 2, -1, 1),
    Sketcher.Constraint("Symmetric", 0, 2, 10, 2, -1, 1),
    Sketcher.Constraint("Symmetric", 6, 2, 12, 2, -1, 1),
    Sketcher.Constraint("Symmetric", 4, 2, 14, 2, -1, 1),
    Sketcher.Constraint("Symmetric", 5, 2, 8, 2, -2),
    Sketcher.Constraint("Symmetric", 7, 2, 10, 2, -2),
    Sketcher.Constraint("Equal", 15, 0),
    Sketcher.Constraint("DistanceX", 1, 1, 1, 2, 7.0),
    Sketcher.Constraint("DistanceX", 0, 2, -1, 1, 47.0),
    Sketcher.Constraint("DistanceY", 0, 2, -1, 1, 20.0),
])
pad5 = body.newObject("PartDesign::Pad", "Pad004")
pad5.Profile = sketch11
pad5.Length = 10
pad5.Reversed = True
doc.recompute()

fillet = body.newObject("PartDesign::Fillet", "Fillet")
fillet.Base = (pad5, edges_at(pad5, [
    (70, 0, 0),
    (64.142, 0, 24.142),
    (0, 0, 30),
    (-64.142, 0, 24.142),
    (-70, 0, 0),
    (-64.142, 0, -24.142),
    (0, 0, -30),
    (64.142, 0, -24.142),
]))
fillet.Radius = 3

# Sketch on XZ plane
sketch12 = body.newObject("Sketcher::SketchObject", "Sketch011")
sketch12.AttachmentSupport = (doc.getObject("XZ_Plane"), [""])
sketch12.MapMode = "FlatFace"
sketch12.AttachmentOffset = App.Placement(V(0, 0, -13), App.Rotation())
sketch12.addGeometry([
    Part.Circle(V(-43.5, -23.5, 0), V(0, 0, 1), 1.3),
    Part.Circle(V(-43.5, 23.5, 0), V(0, 0, 1), 1.3),
    Part.Circle(V(43.5, 23.5, 0), V(0, 0, 1), 1.3),
    Part.Circle(V(43.5, -23.5, 0), V(0, 0, 1), 1.3),
], False)
sketch12.addConstraint([
    Sketcher.Constraint("Equal", 0, 1),
    Sketcher.Constraint("Equal", 1, 2),
    Sketcher.Constraint("Equal", 2, 3),
    Sketcher.Constraint("Symmetric", 0, 3, 2, 3, -1, 1),
    Sketcher.Constraint("Symmetric", 1, 3, 3, 3, -1, 1),
    Sketcher.Constraint("Symmetric", 1, 3, 2, 3, -2),
    Sketcher.Constraint("Diameter", 0, 2.6),
    Sketcher.Constraint("DistanceY", 0, 3, 1, 3, 47.0),
    Sketcher.Constraint("DistanceX", 1, 3, 2, 3, 87.0),
])
pocket7 = body.newObject("PartDesign::Pocket", "Pocket006")
pocket7.Profile = sketch12
pocket7.Length = 9
pocket7.Reversed = True

doc.recompute()
